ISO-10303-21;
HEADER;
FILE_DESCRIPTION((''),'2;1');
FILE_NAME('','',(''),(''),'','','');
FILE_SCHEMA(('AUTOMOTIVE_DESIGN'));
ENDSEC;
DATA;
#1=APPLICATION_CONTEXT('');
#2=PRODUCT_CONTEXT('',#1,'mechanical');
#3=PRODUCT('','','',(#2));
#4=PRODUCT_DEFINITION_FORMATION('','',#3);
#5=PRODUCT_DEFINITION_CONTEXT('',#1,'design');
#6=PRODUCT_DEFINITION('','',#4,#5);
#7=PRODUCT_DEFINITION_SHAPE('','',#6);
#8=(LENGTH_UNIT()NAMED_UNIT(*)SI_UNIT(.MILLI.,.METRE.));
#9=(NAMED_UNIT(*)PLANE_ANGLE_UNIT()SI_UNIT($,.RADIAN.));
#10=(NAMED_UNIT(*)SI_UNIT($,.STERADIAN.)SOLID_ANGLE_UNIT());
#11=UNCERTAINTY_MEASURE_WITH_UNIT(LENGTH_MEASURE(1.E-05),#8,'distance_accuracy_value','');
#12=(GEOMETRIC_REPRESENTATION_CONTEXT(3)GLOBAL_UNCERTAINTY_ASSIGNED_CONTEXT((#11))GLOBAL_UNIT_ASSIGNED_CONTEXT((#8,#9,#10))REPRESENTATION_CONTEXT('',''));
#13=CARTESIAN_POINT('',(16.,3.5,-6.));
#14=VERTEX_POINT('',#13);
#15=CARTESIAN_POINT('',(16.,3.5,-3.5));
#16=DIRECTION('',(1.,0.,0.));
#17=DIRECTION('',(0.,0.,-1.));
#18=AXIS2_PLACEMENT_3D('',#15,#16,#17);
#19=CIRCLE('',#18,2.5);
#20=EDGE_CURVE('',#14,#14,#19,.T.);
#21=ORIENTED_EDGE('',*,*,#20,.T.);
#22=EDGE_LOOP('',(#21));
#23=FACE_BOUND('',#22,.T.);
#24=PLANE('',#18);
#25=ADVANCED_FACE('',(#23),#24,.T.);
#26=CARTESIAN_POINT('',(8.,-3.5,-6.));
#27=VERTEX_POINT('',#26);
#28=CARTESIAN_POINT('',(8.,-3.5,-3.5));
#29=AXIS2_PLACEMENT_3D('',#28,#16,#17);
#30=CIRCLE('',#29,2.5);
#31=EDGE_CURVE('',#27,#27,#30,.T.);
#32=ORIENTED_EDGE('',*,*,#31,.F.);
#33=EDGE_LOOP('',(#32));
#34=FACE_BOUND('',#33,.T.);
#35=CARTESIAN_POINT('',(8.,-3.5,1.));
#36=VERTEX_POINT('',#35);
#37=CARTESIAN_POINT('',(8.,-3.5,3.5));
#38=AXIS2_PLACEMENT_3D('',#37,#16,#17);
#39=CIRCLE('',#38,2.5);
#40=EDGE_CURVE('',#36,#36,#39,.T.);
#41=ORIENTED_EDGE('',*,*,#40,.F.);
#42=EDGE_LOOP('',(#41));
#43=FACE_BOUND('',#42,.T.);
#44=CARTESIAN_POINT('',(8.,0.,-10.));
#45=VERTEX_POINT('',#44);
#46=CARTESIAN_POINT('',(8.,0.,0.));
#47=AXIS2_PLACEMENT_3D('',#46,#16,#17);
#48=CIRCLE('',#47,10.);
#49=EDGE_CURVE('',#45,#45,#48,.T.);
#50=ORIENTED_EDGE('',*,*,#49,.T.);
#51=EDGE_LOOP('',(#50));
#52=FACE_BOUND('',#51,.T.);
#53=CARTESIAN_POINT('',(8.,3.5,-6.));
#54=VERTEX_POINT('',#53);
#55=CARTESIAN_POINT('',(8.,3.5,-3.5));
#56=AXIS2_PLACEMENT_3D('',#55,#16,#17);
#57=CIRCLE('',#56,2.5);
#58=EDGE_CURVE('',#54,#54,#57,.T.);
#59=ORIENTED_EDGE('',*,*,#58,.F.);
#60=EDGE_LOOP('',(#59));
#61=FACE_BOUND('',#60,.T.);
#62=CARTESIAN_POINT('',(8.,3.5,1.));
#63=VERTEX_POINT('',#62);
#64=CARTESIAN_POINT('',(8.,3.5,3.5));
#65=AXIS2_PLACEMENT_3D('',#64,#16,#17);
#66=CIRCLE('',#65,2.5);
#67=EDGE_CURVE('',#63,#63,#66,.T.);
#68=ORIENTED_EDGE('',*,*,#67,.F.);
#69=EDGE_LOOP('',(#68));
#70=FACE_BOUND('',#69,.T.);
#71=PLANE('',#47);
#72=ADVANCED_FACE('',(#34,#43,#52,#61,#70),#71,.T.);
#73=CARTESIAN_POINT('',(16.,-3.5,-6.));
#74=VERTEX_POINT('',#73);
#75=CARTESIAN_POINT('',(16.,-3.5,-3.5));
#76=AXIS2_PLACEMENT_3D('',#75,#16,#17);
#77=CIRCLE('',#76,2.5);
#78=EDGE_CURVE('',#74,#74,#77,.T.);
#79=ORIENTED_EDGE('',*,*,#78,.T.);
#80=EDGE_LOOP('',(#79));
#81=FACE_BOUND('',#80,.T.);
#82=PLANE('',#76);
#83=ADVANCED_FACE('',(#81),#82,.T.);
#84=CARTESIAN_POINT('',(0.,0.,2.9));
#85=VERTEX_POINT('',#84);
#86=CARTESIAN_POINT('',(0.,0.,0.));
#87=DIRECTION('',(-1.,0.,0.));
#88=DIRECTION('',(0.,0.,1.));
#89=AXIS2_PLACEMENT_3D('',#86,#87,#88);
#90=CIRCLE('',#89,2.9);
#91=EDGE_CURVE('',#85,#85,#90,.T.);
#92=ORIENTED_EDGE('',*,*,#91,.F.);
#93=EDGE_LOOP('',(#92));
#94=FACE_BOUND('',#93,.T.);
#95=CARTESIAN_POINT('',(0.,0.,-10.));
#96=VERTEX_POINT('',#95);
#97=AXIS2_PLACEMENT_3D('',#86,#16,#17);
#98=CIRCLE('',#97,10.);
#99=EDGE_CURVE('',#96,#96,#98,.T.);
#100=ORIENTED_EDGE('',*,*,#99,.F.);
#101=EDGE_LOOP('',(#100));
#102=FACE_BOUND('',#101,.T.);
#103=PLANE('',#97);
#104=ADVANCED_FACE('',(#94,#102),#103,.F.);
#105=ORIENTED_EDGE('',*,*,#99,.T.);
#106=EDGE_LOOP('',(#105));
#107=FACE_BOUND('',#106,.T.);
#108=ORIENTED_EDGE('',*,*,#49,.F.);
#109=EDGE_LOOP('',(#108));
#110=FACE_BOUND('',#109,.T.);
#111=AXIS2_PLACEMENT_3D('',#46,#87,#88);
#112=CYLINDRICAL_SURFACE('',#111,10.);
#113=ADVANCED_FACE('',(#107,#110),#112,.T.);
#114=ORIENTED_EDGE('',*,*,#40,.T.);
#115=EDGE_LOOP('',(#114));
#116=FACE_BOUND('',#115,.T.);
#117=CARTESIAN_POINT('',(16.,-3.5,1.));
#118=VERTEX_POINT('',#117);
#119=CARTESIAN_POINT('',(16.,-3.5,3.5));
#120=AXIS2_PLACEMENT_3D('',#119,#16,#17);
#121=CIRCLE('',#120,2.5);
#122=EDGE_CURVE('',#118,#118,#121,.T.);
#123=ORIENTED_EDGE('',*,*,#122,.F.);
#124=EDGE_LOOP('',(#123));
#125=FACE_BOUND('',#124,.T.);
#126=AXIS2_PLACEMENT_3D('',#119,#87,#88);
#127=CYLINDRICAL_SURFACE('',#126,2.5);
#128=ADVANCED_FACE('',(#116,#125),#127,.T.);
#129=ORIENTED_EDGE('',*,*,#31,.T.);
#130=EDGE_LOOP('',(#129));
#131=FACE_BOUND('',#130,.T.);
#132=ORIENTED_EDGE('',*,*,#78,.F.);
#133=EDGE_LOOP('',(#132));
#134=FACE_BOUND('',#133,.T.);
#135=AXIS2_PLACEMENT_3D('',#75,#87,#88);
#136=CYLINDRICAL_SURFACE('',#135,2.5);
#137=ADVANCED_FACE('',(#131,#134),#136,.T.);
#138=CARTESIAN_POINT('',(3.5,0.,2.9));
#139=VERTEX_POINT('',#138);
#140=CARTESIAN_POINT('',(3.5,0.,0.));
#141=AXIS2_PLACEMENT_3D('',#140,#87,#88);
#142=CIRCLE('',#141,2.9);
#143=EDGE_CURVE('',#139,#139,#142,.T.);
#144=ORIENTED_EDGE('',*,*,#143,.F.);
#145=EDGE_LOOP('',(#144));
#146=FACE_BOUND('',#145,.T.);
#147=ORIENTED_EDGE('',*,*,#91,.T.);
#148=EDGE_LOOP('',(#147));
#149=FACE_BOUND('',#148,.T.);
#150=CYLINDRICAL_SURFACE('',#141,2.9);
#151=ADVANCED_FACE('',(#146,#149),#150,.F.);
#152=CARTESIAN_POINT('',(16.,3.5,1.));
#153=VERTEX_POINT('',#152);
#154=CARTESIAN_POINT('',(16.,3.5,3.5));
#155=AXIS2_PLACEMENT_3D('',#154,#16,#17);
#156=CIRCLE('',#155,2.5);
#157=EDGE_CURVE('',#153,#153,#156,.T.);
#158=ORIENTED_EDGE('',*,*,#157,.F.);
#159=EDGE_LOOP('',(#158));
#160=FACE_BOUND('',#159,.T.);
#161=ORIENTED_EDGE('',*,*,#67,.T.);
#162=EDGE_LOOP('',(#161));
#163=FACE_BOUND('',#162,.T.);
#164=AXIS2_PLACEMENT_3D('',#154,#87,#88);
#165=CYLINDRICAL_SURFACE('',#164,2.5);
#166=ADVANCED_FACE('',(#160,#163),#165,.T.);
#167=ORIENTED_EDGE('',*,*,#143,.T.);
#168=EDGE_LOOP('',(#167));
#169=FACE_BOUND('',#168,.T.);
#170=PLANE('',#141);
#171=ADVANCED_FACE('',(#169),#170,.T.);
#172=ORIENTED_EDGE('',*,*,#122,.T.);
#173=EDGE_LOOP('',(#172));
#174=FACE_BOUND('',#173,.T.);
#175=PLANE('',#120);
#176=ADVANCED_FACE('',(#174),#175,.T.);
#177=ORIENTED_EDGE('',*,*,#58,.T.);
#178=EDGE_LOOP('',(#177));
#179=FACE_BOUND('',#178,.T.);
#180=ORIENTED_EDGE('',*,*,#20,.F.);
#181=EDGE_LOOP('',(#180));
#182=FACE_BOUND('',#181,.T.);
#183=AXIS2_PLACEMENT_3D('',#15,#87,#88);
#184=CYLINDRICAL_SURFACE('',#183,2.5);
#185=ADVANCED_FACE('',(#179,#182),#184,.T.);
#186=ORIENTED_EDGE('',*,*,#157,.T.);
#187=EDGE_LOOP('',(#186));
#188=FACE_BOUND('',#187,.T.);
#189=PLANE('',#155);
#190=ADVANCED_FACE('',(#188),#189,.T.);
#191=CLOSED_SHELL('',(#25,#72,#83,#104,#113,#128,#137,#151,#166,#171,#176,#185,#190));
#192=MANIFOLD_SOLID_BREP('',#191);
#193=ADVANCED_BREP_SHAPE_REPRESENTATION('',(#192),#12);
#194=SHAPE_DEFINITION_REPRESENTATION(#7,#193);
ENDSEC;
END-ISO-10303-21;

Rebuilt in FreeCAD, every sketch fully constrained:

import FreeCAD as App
import Part
import Sketcher

doc = App.newDocument("Part")
params = doc.addObject("Spreadsheet::Sheet", "Params")
for row, (alias, value) in enumerate([
    ("sketch1_diameter", "20 mm"),
    ("pad1_length", "8 mm"),
    ("sketch2_diameter", "5 mm"),
    ("pad2_length", "8 mm"),
    ("sketch3_diameter", "5.8 mm"),
    ("pocket1_length", "3.5 mm"),
], start=1):
    params.set(f"A{row}", alias)
    params.set(f"B{row}", "=" + value)
    params.setAlias(f"B{row}", alias)

body = doc.addObject("PartDesign::Body", "Body")

sketch1 = body.newObject("Sketcher::SketchObject", "Sketch")
sketch1.AttachmentSupport = (doc.getObject("YZ_Plane"), [""])
sketch1.MapMode = "FlatFace"
sketch1.addGeometry(Part.Circle(App.Vector(0, 0, 0), App.Vector(0, 0, 1), 10), False)
sketch1.addConstraint([
    Sketcher.Constraint("Coincident", 0, 3, -1, 1),
    Sketcher.Constraint("Diameter", 0, 20.0),
])
sketch1.setExpression("Constraints[1]", "Params.sketch1_diameter")
pad1 = body.newObject("PartDesign::Pad", "Pad")
pad1.Profile = sketch1
pad1.setExpression("Length", "Params.pad1_length")

sketch2 = body.newObject("Sketcher::SketchObject", "Sketch001")
sketch2.AttachmentSupport = (doc.getObject("YZ_Plane"), [""])
sketch2.MapMode = "FlatFace"
sketch2.AttachmentOffset = App.Placement(App.Vector(0, 0, 8), App.Rotation())
sketch2.addGeometry([
    Part.Circle(App.Vector(3.5, 3.5, 0), App.Vector(0, 0, 1), 2.5),
    Part.Circle(App.Vector(3.5, -3.5, 0), App.Vector(0, 0, 1), 2.5),
    Part.Circle(App.Vector(-3.5, 3.5, 0), App.Vector(0, 0, 1), 2.5),
    Part.Circle(App.Vector(-3.5, -3.5, 0), App.Vector(0, 0, 1), 2.5),
], False)
sketch2.addConstraint([
    Sketcher.Constraint("Equal", 0, 1),
    Sketcher.Constraint("Equal", 1, 2),
    Sketcher.Constraint("Equal", 2, 3),
    Sketcher.Constraint("Symmetric", 1, 3, 2, 3, -1, 1),
    Sketcher.Constraint("Symmetric", 0, 3, 3, 3, -1, 1),
    Sketcher.Constraint("Symmetric", 0, 3, 2, 3, -2),
    Sketcher.Constraint("Diameter", 0, 5.0),
    Sketcher.Constraint("DistanceY", 1, 3, 0, 3, 7.0),
    Sketcher.Constraint("DistanceX", 2, 3, 0, 3, 7.0),
])
sketch2.setExpression("Constraints[6]", "Params.sketch2_diameter")
pad2 = body.newObject("PartDesign::Pad", "Pad001")
pad2.Profile = sketch2
pad2.setExpression("Length", "Params.pad2_length")

sketch3 = body.newObject("Sketcher::SketchObject", "Sketch002")
sketch3.AttachmentSupport = (doc.getObject("YZ_Plane"), [""])
sketch3.MapMode = "FlatFace"
sketch3.addGeometry(Part.Circle(App.Vector(0, 0, 0), App.Vector(0, 0, 1), 2.9), False)
sketch3.addConstraint([
    Sketcher.Constraint("Coincident", 0, 3, -1, 1),
    Sketcher.Constraint("Diameter", 0, 5.8),
])
sketch3.setExpression("Constraints[1]", "Params.sketch3_diameter")
pocket1 = body.newObject("PartDesign::Pocket", "Pocket")
pocket1.Profile = sketch3
pocket1.setExpression("Length", "Params.pocket1_length")
pocket1.Reversed = True

doc.recompute()
